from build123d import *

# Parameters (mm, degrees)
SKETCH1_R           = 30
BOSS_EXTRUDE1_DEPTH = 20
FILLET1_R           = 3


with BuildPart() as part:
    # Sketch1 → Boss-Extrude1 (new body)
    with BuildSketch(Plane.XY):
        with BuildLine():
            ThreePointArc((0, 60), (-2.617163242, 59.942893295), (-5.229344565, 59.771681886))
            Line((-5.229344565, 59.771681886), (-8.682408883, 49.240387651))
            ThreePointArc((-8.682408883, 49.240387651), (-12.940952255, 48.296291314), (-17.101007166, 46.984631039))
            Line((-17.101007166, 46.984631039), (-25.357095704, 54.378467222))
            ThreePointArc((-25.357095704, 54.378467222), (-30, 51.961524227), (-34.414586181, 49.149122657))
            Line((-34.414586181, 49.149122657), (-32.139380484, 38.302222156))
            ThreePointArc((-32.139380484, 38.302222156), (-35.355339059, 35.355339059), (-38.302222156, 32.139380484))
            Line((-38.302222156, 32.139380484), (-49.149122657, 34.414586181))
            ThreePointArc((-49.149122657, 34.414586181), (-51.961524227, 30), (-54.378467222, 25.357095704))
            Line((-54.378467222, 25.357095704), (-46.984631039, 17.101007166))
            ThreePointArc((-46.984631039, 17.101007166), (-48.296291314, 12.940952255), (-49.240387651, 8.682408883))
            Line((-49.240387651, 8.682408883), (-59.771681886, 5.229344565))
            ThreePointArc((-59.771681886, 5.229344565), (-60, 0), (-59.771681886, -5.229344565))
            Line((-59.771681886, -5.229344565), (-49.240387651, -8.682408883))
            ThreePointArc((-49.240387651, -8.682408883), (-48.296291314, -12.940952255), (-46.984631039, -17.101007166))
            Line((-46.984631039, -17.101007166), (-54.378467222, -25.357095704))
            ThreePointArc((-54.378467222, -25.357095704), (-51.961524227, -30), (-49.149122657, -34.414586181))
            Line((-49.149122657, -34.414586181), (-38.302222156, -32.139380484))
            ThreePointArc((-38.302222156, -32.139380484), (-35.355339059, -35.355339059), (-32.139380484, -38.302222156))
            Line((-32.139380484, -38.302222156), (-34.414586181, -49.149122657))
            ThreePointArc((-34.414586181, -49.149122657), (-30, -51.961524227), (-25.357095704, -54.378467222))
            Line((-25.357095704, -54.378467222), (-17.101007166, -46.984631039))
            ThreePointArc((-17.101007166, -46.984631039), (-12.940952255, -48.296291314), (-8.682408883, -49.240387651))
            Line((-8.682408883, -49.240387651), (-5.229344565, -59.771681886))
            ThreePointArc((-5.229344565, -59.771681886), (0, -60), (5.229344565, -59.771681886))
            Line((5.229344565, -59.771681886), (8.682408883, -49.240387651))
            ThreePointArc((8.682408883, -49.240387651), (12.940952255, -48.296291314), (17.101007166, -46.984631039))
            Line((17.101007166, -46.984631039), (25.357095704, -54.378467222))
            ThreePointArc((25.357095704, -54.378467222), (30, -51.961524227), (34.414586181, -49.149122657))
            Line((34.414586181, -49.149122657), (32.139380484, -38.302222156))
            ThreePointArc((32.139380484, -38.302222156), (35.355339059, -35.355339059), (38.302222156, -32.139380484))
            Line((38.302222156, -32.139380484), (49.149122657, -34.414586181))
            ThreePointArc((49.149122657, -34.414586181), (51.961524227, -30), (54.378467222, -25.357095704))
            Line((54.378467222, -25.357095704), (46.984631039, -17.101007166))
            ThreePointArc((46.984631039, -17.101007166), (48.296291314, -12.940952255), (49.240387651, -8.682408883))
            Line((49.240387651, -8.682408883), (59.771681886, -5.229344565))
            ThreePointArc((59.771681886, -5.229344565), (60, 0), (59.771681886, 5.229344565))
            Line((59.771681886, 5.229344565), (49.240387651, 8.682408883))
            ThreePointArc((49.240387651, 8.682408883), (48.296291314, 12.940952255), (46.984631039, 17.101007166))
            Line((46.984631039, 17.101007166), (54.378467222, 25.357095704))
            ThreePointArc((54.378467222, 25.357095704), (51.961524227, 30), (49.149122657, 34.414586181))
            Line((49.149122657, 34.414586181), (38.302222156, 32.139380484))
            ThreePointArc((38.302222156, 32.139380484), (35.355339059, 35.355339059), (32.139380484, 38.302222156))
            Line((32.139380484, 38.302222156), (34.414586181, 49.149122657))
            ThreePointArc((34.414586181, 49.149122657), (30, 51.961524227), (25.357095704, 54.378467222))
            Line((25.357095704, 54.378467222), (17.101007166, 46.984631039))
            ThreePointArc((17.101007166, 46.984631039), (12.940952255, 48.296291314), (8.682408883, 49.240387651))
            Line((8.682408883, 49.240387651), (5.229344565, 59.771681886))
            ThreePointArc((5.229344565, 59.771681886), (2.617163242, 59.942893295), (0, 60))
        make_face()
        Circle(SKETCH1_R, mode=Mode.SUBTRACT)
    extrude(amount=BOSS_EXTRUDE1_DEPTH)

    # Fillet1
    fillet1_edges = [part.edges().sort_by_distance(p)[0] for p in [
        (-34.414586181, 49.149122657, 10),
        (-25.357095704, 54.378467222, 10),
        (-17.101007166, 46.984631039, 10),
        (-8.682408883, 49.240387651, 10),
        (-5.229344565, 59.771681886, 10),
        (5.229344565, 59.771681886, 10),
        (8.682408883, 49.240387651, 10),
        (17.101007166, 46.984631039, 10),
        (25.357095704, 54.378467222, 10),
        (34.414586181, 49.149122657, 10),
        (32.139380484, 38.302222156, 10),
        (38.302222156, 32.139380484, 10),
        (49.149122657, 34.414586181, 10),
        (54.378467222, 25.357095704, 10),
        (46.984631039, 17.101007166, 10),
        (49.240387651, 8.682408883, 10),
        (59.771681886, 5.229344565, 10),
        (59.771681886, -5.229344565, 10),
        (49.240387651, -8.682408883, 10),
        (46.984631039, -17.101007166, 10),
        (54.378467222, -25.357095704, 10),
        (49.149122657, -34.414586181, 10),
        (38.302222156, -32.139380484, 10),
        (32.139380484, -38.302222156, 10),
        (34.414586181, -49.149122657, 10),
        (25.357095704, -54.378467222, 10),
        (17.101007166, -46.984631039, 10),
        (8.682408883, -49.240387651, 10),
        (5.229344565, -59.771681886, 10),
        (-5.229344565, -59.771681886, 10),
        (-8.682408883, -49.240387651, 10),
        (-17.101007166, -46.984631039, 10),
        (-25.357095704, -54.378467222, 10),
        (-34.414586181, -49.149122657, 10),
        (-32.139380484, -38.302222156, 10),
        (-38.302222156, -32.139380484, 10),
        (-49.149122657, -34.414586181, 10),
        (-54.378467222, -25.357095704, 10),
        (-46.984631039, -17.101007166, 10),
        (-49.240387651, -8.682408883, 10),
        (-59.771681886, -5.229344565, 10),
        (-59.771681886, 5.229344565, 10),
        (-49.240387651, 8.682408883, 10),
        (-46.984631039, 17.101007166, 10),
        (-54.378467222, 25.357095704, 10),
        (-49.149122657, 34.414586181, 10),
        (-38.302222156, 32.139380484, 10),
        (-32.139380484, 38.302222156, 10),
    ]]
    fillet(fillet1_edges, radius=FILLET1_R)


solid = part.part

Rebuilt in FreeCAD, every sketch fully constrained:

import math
import FreeCAD as App
import Part
import Sketcher
from FreeCAD import Vector
Q = App.Units.Quantity


def edges_at(feature, points):
    """Names of the edges that pass closest to the given points."""
    edges = feature.Shape.Edges
    near = lambda p: min(range(len(edges)), key=lambda i: edges[i].distToShape(Part.Vertex(*p))[0])
    return sorted({f"Edge{near(p) + 1}" for p in points})

doc = App.newDocument("Part")
body = doc.addObject("PartDesign::Body", "Body")

# Sketch on XY plane
sketch1 = body.newObject("Sketcher::SketchObject", "Sketch")
sketch1.AttachmentSupport = (doc.getObject("XY_Plane"), [""])
sketch1.MapMode = "FlatFace"
sketch1.addGeometry([
    Part.ArcOfCircle(Part.Circle(Vector(0, 0, 0), Vector(0, 0, 1), 60), math.radians(90), math.radians(95)),  # 0
    Part.LineSegment(Vector(-5, 60, 0), Vector(-9, 49, 0)),  # 1
    Part.ArcOfCircle(Part.Circle(Vector(0, 0, 0), Vector(0, 0, 1), 50), math.radians(100), math.radians(110)),  # 2
    Part.LineSegment(Vector(-17, 47, 0), Vector(-25, 54, 0)),  # 3
    Part.ArcOfCircle(Part.Circle(Vector(0, 0, 0), Vector(0, 0, 1), 60), math.radians(115), math.radians(125)),  # 4
    Part.LineSegment(Vector(-34, 49, 0), Vector(-32, 38, 0)),  # 5
    Part.ArcOfCircle(Part.Circle(Vector(0, 0, 0), Vector(0, 0, 1), 50), math.radians(130), math.radians(140)),  # 6
    Part.LineSegment(Vector(-38, 32, 0), Vector(-49, 34, 0)),  # 7
    Part.ArcOfCircle(Part.Circle(Vector(0, 0, 0), Vector(0, 0, 1), 60), math.radians(145), math.radians(155)),  # 8
    Part.LineSegment(Vector(-54, 25, 0), Vector(-47, 17, 0)),  # 9
    Part.ArcOfCircle(Part.Circle(Vector(0, 0, 0), Vector(0, 0, 1), 50), math.radians(160), math.radians(170)),  # 10
    Part.LineSegment(Vector(-49, 9, 0), Vector(-60, 5, 0)),  # 11
    Part.ArcOfCircle(Part.Circle(Vector(0, 0, 0), Vector(0, 0, 1), 60), math.radians(175), math.radians(185)),  # 12
    Part.LineSegment(Vector(-60, -5, 0), Vector(-49, -9, 0)),  # 13
    Part.ArcOfCircle(Part.Circle(Vector(0, 0, 0), Vector(0, 0, 1), 50), math.radians(-170), math.radians(-160)),  # 14
    Part.LineSegment(Vector(-47, -17, 0), Vector(-54, -25, 0)),  # 15
    Part.ArcOfCircle(Part.Circle(Vector(0, 0, 0), Vector(0, 0, 1), 60), math.radians(-155), math.radians(-145)),  # 16
    Part.LineSegment(Vector(-49, -34, 0), Vector(-38, -32, 0)),  # 17
    Part.ArcOfCircle(Part.Circle(Vector(0, 0, 0), Vector(0, 0, 1), 50), math.radians(-140), math.radians(-130)),  # 18
    Part.LineSegment(Vector(-32, -38, 0), Vector(-34, -49, 0)),  # 19
    Part.ArcOfCircle(Part.Circle(Vector(0, 0, 0), Vector(0, 0, 1), 60), math.radians(-125), math.radians(-115)),  # 20
    Part.LineSegment(Vector(-25, -54, 0), Vector(-17, -47, 0)),  # 21
    Part.ArcOfCircle(Part.Circle(Vector(0, 0, 0), Vector(0, 0, 1), 50), math.radians(-110), math.radians(-100)),  # 22
    Part.LineSegment(Vector(-9, -49, 0), Vector(-5, -60, 0)),  # 23
    Part.ArcOfCircle(Part.Circle(Vector(0, 0, 0), Vector(0, 0, 1), 60), math.radians(-95), math.radians(-85)),  # 24
    Part.LineSegment(Vector(5, -60, 0), Vector(9, -49, 0)),  # 25
    Part.ArcOfCircle(Part.Circle(Vector(0, 0, 0), Vector(0, 0, 1), 50), math.radians(-80), math.radians(-70)),  # 26
    Part.LineSegment(Vector(17, -47, 0), Vector(25, -54, 0)),  # 27
    Part.ArcOfCircle(Part.Circle(Vector(0, 0, 0), Vector(0, 0, 1), 60), math.radians(-65), math.radians(-55)),  # 28
    Part.LineSegment(Vector(34, -49, 0), Vector(32, -38, 0)),  # 29
    Part.ArcOfCircle(Part.Circle(Vector(0, 0, 0), Vector(0, 0, 1), 50), math.radians(-50), math.radians(-40)),  # 30
    Part.LineSegment(Vector(38, -32, 0), Vector(49, -34, 0)),  # 31
    Part.ArcOfCircle(Part.Circle(Vector(0, 0, 0), Vector(0, 0, 1), 60), math.radians(-35), math.radians(-25)),  # 32
    Part.LineSegment(Vector(54, -25, 0), Vector(47, -17, 0)),  # 33
    Part.ArcOfCircle(Part.Circle(Vector(0, 0, 0), Vector(0, 0, 1), 50), math.radians(-20), math.radians(-10)),  # 34
    Part.LineSegment(Vector(49, -9, 0), Vector(60, -5, 0)),  # 35
    Part.ArcOfCircle(Part.Circle(Vector(0, 0, 0), Vector(0, 0, 1), 60), math.radians(-5), math.radians(5)),  # 36
    Part.LineSegment(Vector(60, 5, 0), Vector(49, 9, 0)),  # 37
    Part.ArcOfCircle(Part.Circle(Vector(0, 0, 0), Vector(0, 0, 1), 50), math.radians(10), math.radians(20)),  # 38
    Part.LineSegment(Vector(47, 17, 0), Vector(54, 25, 0)),  # 39
    Part.ArcOfCircle(Part.Circle(Vector(0, 0, 0), Vector(0, 0, 1), 60), math.radians(25), math.radians(35)),  # 40
    Part.LineSegment(Vector(49, 34, 0), Vector(38, 32, 0)),  # 41
    Part.ArcOfCircle(Part.Circle(Vector(0, 0, 0), Vector(0, 0, 1), 50), math.radians(40), math.radians(50)),  # 42
    Part.LineSegment(Vector(32, 38, 0), Vector(34, 49, 0)),  # 43
    Part.ArcOfCircle(Part.Circle(Vector(0, 0, 0), Vector(0, 0, 1), 60), math.radians(55), math.radians(65)),  # 44
    Part.LineSegment(Vector(25, 54, 0), Vector(17, 47, 0)),  # 45
    Part.ArcOfCircle(Part.Circle(Vector(0, 0, 0), Vector(0, 0, 1), 50), math.radians(70), math.radians(80)),  # 46
    Part.LineSegment(Vector(9, 49, 0), Vector(5, 60, 0)),  # 47
    Part.ArcOfCircle(Part.Circle(Vector(0, 0, 0), Vector(0, 0, 1), 60), math.radians(85), math.radians(90)),  # 48
    Part.Circle(Vector(0, 0, 0), Vector(0, 0, 1), 30),  # 49
], False)
sketch1.addConstraint([
    Sketcher.Constraint("Coincident", 0, 2, 1, 1),
    Sketcher.Constraint("Coincident", 1, 2, 2, 1),
    Sketcher.Constraint("Coincident", 2, 2, 3, 1),
    Sketcher.Constraint("Coincident", 3, 2, 4, 1),
    Sketcher.Constraint("Coincident", 4, 2, 5, 1),
    Sketcher.Constraint("Coincident", 5, 2, 6, 1),
    Sketcher.Constraint("Coincident", 6, 2, 7, 1),
    Sketcher.Constraint("Coincident", 7, 2, 8, 1),
    Sketcher.Constraint("Coincident", 8, 2, 9, 1),
    Sketcher.Constraint("Coincident", 9, 2, 10, 1),
    Sketcher.Constraint("Coincident", 10, 2, 11, 1),
    Sketcher.Constraint("Coincident", 11, 2, 12, 1),
    Sketcher.Constraint("Coincident", 12, 2, 13, 1),
    Sketcher.Constraint("Coincident", 13, 2, 14, 1),
    Sketcher.Constraint("Coincident", 14, 2, 15, 1),
    Sketcher.Constraint("Coincident", 15, 2, 16, 1),
    Sketcher.Constraint("Coincident", 16, 2, 17, 1),
    Sketcher.Constraint("Coincident", 17, 2, 18, 1),
    Sketcher.Constraint("Coincident", 18, 2, 19, 1),
    Sketcher.Constraint("Coincident", 19, 2, 20, 1),
    Sketcher.Constraint("Coincident", 20, 2, 21, 1),
    Sketcher.Constraint("Coincident", 21, 2, 22, 1),
    Sketcher.Constraint("Coincident", 22, 2, 23, 1),
    Sketcher.Constraint("Coincident", 23, 2, 24, 1),
    Sketcher.Constraint("Coincident", 24, 2, 25, 1),
    Sketcher.Constraint("Coincident", 25, 2, 26, 1),
    Sketcher.Constraint("Coincident", 26, 2, 27, 1),
    Sketcher.Constraint("Coincident", 27, 2, 28, 1),
    Sketcher.Constraint("Coincident", 28, 2, 29, 1),
    Sketcher.Constraint("Coincident", 29, 2, 30, 1),
    Sketcher.Constraint("Coincident", 30, 2, 31, 1),
    Sketcher.Constraint("Coincident", 31, 2, 32, 1),
    Sketcher.Constraint("Coincident", 32, 2, 33, 1),
    Sketcher.Constraint("Coincident", 33, 2, 34, 1),
    Sketcher.Constraint("Coincident", 34, 2, 35, 1),
    Sketcher.Constraint("Coincident", 35, 2, 36, 1),
    Sketcher.Constraint("Coincident", 36, 2, 37, 1),
    Sketcher.Constraint("Coincident", 37, 2, 38, 1),
    Sketcher.Constraint("Coincident", 38, 2, 39, 1),
    Sketcher.Constraint("Coincident", 39, 2, 40, 1),
    Sketcher.Constraint("Coincident", 40, 2, 41, 1),
    Sketcher.Constraint("Coincident", 41, 2, 42, 1),
    Sketcher.Constraint("Coincident", 42, 2, 43, 1),
    Sketcher.Constraint("Coincident", 43, 2, 44, 1),
    Sketcher.Constraint("Coincident", 44, 2, 45, 1),
    Sketcher.Constraint("Coincident", 45, 2, 46, 1),
    Sketcher.Constraint("Coincident", 46, 2, 47, 1),
    Sketcher.Constraint("Coincident", 47, 2, 48, 1),
    Sketcher.Constraint("Tangent", 48, 2, 0, 1),
    Sketcher.Constraint("Coincident", 0, 3, -1, 1),
    Sketcher.Constraint("Coincident", 2, 3, -1, 1),
    Sketcher.Constraint("Coincident", 4, 3, -1, 1),
    Sketcher.Constraint("Coincident", 6, 3, -1, 1),
    Sketcher.Constraint("Coincident", 8, 3, -1, 1),
    Sketcher.Constraint("Coincident", 10, 3, -1, 1),
    Sketcher.Constraint("Coincident", 12, 3, -1, 1),
    Sketcher.Constraint("Coincident", 14, 3, -1, 1),
    Sketcher.Constraint("Coincident", 16, 3, -1, 1),
    Sketcher.Constraint("Coincident", 18, 3, -1, 1),
    Sketcher.Constraint("Coincident", 20, 3, -1, 1),
    Sketcher.Constraint("Coincident", 22, 3, -1, 1),
    Sketcher.Constraint("Coincident", 24, 3, -1, 1),
    Sketcher.Constraint("Coincident", 26, 3, -1, 1),
    Sketcher.Constraint("Coincident", 28, 3, -1, 1),
    Sketcher.Constraint("Coincident", 30, 3, -1, 1),
    Sketcher.Constraint("Coincident", 32, 3, -1, 1),
    Sketcher.Constraint("Coincident", 34, 3, -1, 1),
    Sketcher.Constraint("Coincident", 36, 3, -1, 1),
    Sketcher.Constraint("Coincident", 38, 3, -1, 1),
    Sketcher.Constraint("Coincident", 40, 3, -1, 1),
    Sketcher.Constraint("Coincident", 42, 3, -1, 1),
    Sketcher.Constraint("Coincident", 44, 3, -1, 1),
    Sketcher.Constraint("Coincident", 46, 3, -1, 1),
    Sketcher.Constraint("Coincident", 49, 3, -1, 1),
    Sketcher.Constraint("Equal", 0, 4),
    Sketcher.Constraint("Equal", 2, 6),
    Sketcher.Constraint("Equal", 4, 8),
    Sketcher.Constraint("Equal", 6, 10),
    Sketcher.Constraint("Equal", 8, 12),
    Sketcher.Constraint("Equal", 10, 14),
    Sketcher.Constraint("Equal", 12, 16),
    Sketcher.Constraint("Equal", 14, 18),
    Sketcher.Constraint("Equal", 16, 20),
    Sketcher.Constraint("Equal", 18, 22),
    Sketcher.Constraint("Equal", 20, 24),
    Sketcher.Constraint("Equal", 22, 26),
    Sketcher.Constraint("Equal", 24, 28),
    Sketcher.Constraint("Equal", 26, 30),
    Sketcher.Constraint("Equal", 28, 32),
    Sketcher.Constraint("Equal", 30, 34),
    Sketcher.Constraint("Equal", 32, 36),
    Sketcher.Constraint("Equal", 34, 38),
    Sketcher.Constraint("Equal", 36, 40),
    Sketcher.Constraint("Equal", 38, 42),
    Sketcher.Constraint("Equal", 40, 44),
    Sketcher.Constraint("Equal", 42, 46),
    Sketcher.Constraint("Equal", 44, 48),
    Sketcher.Constraint("PointOnObject", 48, 2, -2),
    Sketcher.Constraint("Perpendicular", 1, 13),
    Sketcher.Constraint("Perpendicular", 3, 15),
    Sketcher.Constraint("Perpendicular", 5, 17),
    Sketcher.Constraint("Perpendicular", 7, 19),
    Sketcher.Constraint("Perpendicular", 9, 21),
    Sketcher.Constraint("Perpendicular", 11, 23),
    Sketcher.Constraint("Perpendicular", 13, 25),
    Sketcher.Constraint("Perpendicular", 15, 27),
    Sketcher.Constraint("Perpendicular", 17, 29),
    Sketcher.Constraint("Perpendicular", 19, 31),
    Sketcher.Constraint("Perpendicular", 21, 33),
    Sketcher.Constraint("Perpendicular", 23, 35),
    Sketcher.Constraint("Perpendicular", 25, 37),
    Sketcher.Constraint("Perpendicular", 27, 39),
    Sketcher.Constraint("Perpendicular", 29, 41),
    Sketcher.Constraint("Perpendicular", 31, 43),
    Sketcher.Constraint("Perpendicular", 33, 45),
    Sketcher.Constraint("Perpendicular", 35, 47),
    Sketcher.Constraint("Horizontal", 23, 2, 24, 2),
    Sketcher.Constraint("Horizontal", 22, 2, 25, 2),
    Sketcher.Constraint("Horizontal", 21, 2, 26, 2),
    Sketcher.Constraint("Horizontal", 20, 2, 27, 2),
    Sketcher.Constraint("Horizontal", 19, 2, 28, 2),
    Sketcher.Constraint("Horizontal", 18, 2, 29, 2),
    Sketcher.Constraint("Horizontal", 17, 2, 30, 2),
    Sketcher.Constraint("Horizontal", 15, 2, 32, 2),
    Sketcher.Constraint("Horizontal", 13, 2, 34, 2),
    Sketcher.Constraint("Horizontal", 11, 2, 36, 2),
    Sketcher.Constraint("Horizontal", 9, 2, 38, 2),
    Sketcher.Constraint("Horizontal", 7, 2, 40, 2),
    Sketcher.Constraint("Horizontal", 5, 2, 42, 2),
    Sketcher.Constraint("Horizontal", 3, 2, 44, 2),
    Sketcher.Constraint("Horizontal", 1, 2, 46, 2),
    Sketcher.Constraint("Vertical", 11, 2, 12, 2),
    Sketcher.Constraint("Vertical", 9, 2, 14, 2),
    Sketcher.Constraint("Vertical", 7, 2, 16, 2),
    Sketcher.Constraint("Vertical", 5, 2, 18, 2),
    Sketcher.Constraint("Vertical", 3, 2, 20, 2),
    Sketcher.Constraint("Vertical", 1, 2, 22, 2),
    Sketcher.Constraint("Equal", 1, 3),
    Sketcher.Constraint("Equal", 3, 5),
    Sketcher.Constraint("Equal", 5, 7),
    Sketcher.Constraint("Equal", 7, 9),
    Sketcher.Constraint("Equal", 9, 11),
    Sketcher.Constraint("Diameter", 49, Q("60 mm")),
    Sketcher.Constraint("Radius", 0, Q("60 mm")),
    Sketcher.Constraint("Radius", 2, Q("50 mm")),
    Sketcher.Constraint("Distance", 1, Q("11.082951 mm")),
    Sketcher.Constraint("DistanceY", -1, 1, 0, 2, Q("59.771682 mm")),
    Sketcher.Constraint("DistanceY", -1, 1, 2, 2, Q("46.984631 mm")),
    Sketcher.Constraint("DistanceX", 5, 2, -1, 1, Q("32.13938 mm")),
])
pad1 = body.newObject("PartDesign::Pad", "Pad")
pad1.Profile = sketch1
pad1.Length = 20
doc.recompute()

fillet = body.newObject("PartDesign::Fillet", "Fillet")
fillet.Base = (pad1, edges_at(pad1, [
    (-34.415, 49.149, 10),
    (-25.357, 54.378, 10),
    (-17.101, 46.985, 10),
    (-8.682, 49.24, 10),
    (-5.229, 59.772, 10),
    (5.229, 59.772, 10),
    (8.682, 49.24, 10),
    (17.101, 46.985, 10),
    (25.357, 54.378, 10),
    (34.415, 49.149, 10),
    (32.139, 38.302, 10),
    (38.302, 32.139, 10),
    (49.149, 34.415, 10),
    (54.378, 25.357, 10),
    (46.985, 17.101, 10),
    (49.24, 8.682, 10),
    (59.772, 5.229, 10),
    (59.772, -5.229, 10),
    (49.24, -8.682, 10),
    (46.985, -17.101, 10),
    (54.378, -25.357, 10),
    (49.149, -34.415, 10),
    (38.302, -32.139, 10),
    (32.139, -38.302, 10),
    (34.415, -49.149, 10),
    (25.357, -54.378, 10),
    (17.101, -46.985, 10),
    (8.682, -49.24, 10),
    (5.229, -59.772, 10),
    (-5.229, -59.772, 10),
    (-8.682, -49.24, 10),
    (-17.101, -46.985, 10),
    (-25.357, -54.378, 10),
    (-34.415, -49.149, 10),
    (-32.139, -38.302, 10),
    (-38.302, -32.139, 10),
    (-49.149, -34.415, 10),
    (-54.378, -25.357, 10),
    (-46.985, -17.101, 10),
    (-49.24, -8.682, 10),
    (-59.772, -5.229, 10),
    (-59.772, 5.229, 10),
    (-49.24, 8.682, 10),
    (-46.985, 17.101, 10),
    (-54.378, 25.357, 10),
    (-49.149, 34.415, 10),
    (-38.302, 32.139, 10),
    (-32.139, 38.302, 10),
]))
fillet.Radius = 3

doc.recompute()
